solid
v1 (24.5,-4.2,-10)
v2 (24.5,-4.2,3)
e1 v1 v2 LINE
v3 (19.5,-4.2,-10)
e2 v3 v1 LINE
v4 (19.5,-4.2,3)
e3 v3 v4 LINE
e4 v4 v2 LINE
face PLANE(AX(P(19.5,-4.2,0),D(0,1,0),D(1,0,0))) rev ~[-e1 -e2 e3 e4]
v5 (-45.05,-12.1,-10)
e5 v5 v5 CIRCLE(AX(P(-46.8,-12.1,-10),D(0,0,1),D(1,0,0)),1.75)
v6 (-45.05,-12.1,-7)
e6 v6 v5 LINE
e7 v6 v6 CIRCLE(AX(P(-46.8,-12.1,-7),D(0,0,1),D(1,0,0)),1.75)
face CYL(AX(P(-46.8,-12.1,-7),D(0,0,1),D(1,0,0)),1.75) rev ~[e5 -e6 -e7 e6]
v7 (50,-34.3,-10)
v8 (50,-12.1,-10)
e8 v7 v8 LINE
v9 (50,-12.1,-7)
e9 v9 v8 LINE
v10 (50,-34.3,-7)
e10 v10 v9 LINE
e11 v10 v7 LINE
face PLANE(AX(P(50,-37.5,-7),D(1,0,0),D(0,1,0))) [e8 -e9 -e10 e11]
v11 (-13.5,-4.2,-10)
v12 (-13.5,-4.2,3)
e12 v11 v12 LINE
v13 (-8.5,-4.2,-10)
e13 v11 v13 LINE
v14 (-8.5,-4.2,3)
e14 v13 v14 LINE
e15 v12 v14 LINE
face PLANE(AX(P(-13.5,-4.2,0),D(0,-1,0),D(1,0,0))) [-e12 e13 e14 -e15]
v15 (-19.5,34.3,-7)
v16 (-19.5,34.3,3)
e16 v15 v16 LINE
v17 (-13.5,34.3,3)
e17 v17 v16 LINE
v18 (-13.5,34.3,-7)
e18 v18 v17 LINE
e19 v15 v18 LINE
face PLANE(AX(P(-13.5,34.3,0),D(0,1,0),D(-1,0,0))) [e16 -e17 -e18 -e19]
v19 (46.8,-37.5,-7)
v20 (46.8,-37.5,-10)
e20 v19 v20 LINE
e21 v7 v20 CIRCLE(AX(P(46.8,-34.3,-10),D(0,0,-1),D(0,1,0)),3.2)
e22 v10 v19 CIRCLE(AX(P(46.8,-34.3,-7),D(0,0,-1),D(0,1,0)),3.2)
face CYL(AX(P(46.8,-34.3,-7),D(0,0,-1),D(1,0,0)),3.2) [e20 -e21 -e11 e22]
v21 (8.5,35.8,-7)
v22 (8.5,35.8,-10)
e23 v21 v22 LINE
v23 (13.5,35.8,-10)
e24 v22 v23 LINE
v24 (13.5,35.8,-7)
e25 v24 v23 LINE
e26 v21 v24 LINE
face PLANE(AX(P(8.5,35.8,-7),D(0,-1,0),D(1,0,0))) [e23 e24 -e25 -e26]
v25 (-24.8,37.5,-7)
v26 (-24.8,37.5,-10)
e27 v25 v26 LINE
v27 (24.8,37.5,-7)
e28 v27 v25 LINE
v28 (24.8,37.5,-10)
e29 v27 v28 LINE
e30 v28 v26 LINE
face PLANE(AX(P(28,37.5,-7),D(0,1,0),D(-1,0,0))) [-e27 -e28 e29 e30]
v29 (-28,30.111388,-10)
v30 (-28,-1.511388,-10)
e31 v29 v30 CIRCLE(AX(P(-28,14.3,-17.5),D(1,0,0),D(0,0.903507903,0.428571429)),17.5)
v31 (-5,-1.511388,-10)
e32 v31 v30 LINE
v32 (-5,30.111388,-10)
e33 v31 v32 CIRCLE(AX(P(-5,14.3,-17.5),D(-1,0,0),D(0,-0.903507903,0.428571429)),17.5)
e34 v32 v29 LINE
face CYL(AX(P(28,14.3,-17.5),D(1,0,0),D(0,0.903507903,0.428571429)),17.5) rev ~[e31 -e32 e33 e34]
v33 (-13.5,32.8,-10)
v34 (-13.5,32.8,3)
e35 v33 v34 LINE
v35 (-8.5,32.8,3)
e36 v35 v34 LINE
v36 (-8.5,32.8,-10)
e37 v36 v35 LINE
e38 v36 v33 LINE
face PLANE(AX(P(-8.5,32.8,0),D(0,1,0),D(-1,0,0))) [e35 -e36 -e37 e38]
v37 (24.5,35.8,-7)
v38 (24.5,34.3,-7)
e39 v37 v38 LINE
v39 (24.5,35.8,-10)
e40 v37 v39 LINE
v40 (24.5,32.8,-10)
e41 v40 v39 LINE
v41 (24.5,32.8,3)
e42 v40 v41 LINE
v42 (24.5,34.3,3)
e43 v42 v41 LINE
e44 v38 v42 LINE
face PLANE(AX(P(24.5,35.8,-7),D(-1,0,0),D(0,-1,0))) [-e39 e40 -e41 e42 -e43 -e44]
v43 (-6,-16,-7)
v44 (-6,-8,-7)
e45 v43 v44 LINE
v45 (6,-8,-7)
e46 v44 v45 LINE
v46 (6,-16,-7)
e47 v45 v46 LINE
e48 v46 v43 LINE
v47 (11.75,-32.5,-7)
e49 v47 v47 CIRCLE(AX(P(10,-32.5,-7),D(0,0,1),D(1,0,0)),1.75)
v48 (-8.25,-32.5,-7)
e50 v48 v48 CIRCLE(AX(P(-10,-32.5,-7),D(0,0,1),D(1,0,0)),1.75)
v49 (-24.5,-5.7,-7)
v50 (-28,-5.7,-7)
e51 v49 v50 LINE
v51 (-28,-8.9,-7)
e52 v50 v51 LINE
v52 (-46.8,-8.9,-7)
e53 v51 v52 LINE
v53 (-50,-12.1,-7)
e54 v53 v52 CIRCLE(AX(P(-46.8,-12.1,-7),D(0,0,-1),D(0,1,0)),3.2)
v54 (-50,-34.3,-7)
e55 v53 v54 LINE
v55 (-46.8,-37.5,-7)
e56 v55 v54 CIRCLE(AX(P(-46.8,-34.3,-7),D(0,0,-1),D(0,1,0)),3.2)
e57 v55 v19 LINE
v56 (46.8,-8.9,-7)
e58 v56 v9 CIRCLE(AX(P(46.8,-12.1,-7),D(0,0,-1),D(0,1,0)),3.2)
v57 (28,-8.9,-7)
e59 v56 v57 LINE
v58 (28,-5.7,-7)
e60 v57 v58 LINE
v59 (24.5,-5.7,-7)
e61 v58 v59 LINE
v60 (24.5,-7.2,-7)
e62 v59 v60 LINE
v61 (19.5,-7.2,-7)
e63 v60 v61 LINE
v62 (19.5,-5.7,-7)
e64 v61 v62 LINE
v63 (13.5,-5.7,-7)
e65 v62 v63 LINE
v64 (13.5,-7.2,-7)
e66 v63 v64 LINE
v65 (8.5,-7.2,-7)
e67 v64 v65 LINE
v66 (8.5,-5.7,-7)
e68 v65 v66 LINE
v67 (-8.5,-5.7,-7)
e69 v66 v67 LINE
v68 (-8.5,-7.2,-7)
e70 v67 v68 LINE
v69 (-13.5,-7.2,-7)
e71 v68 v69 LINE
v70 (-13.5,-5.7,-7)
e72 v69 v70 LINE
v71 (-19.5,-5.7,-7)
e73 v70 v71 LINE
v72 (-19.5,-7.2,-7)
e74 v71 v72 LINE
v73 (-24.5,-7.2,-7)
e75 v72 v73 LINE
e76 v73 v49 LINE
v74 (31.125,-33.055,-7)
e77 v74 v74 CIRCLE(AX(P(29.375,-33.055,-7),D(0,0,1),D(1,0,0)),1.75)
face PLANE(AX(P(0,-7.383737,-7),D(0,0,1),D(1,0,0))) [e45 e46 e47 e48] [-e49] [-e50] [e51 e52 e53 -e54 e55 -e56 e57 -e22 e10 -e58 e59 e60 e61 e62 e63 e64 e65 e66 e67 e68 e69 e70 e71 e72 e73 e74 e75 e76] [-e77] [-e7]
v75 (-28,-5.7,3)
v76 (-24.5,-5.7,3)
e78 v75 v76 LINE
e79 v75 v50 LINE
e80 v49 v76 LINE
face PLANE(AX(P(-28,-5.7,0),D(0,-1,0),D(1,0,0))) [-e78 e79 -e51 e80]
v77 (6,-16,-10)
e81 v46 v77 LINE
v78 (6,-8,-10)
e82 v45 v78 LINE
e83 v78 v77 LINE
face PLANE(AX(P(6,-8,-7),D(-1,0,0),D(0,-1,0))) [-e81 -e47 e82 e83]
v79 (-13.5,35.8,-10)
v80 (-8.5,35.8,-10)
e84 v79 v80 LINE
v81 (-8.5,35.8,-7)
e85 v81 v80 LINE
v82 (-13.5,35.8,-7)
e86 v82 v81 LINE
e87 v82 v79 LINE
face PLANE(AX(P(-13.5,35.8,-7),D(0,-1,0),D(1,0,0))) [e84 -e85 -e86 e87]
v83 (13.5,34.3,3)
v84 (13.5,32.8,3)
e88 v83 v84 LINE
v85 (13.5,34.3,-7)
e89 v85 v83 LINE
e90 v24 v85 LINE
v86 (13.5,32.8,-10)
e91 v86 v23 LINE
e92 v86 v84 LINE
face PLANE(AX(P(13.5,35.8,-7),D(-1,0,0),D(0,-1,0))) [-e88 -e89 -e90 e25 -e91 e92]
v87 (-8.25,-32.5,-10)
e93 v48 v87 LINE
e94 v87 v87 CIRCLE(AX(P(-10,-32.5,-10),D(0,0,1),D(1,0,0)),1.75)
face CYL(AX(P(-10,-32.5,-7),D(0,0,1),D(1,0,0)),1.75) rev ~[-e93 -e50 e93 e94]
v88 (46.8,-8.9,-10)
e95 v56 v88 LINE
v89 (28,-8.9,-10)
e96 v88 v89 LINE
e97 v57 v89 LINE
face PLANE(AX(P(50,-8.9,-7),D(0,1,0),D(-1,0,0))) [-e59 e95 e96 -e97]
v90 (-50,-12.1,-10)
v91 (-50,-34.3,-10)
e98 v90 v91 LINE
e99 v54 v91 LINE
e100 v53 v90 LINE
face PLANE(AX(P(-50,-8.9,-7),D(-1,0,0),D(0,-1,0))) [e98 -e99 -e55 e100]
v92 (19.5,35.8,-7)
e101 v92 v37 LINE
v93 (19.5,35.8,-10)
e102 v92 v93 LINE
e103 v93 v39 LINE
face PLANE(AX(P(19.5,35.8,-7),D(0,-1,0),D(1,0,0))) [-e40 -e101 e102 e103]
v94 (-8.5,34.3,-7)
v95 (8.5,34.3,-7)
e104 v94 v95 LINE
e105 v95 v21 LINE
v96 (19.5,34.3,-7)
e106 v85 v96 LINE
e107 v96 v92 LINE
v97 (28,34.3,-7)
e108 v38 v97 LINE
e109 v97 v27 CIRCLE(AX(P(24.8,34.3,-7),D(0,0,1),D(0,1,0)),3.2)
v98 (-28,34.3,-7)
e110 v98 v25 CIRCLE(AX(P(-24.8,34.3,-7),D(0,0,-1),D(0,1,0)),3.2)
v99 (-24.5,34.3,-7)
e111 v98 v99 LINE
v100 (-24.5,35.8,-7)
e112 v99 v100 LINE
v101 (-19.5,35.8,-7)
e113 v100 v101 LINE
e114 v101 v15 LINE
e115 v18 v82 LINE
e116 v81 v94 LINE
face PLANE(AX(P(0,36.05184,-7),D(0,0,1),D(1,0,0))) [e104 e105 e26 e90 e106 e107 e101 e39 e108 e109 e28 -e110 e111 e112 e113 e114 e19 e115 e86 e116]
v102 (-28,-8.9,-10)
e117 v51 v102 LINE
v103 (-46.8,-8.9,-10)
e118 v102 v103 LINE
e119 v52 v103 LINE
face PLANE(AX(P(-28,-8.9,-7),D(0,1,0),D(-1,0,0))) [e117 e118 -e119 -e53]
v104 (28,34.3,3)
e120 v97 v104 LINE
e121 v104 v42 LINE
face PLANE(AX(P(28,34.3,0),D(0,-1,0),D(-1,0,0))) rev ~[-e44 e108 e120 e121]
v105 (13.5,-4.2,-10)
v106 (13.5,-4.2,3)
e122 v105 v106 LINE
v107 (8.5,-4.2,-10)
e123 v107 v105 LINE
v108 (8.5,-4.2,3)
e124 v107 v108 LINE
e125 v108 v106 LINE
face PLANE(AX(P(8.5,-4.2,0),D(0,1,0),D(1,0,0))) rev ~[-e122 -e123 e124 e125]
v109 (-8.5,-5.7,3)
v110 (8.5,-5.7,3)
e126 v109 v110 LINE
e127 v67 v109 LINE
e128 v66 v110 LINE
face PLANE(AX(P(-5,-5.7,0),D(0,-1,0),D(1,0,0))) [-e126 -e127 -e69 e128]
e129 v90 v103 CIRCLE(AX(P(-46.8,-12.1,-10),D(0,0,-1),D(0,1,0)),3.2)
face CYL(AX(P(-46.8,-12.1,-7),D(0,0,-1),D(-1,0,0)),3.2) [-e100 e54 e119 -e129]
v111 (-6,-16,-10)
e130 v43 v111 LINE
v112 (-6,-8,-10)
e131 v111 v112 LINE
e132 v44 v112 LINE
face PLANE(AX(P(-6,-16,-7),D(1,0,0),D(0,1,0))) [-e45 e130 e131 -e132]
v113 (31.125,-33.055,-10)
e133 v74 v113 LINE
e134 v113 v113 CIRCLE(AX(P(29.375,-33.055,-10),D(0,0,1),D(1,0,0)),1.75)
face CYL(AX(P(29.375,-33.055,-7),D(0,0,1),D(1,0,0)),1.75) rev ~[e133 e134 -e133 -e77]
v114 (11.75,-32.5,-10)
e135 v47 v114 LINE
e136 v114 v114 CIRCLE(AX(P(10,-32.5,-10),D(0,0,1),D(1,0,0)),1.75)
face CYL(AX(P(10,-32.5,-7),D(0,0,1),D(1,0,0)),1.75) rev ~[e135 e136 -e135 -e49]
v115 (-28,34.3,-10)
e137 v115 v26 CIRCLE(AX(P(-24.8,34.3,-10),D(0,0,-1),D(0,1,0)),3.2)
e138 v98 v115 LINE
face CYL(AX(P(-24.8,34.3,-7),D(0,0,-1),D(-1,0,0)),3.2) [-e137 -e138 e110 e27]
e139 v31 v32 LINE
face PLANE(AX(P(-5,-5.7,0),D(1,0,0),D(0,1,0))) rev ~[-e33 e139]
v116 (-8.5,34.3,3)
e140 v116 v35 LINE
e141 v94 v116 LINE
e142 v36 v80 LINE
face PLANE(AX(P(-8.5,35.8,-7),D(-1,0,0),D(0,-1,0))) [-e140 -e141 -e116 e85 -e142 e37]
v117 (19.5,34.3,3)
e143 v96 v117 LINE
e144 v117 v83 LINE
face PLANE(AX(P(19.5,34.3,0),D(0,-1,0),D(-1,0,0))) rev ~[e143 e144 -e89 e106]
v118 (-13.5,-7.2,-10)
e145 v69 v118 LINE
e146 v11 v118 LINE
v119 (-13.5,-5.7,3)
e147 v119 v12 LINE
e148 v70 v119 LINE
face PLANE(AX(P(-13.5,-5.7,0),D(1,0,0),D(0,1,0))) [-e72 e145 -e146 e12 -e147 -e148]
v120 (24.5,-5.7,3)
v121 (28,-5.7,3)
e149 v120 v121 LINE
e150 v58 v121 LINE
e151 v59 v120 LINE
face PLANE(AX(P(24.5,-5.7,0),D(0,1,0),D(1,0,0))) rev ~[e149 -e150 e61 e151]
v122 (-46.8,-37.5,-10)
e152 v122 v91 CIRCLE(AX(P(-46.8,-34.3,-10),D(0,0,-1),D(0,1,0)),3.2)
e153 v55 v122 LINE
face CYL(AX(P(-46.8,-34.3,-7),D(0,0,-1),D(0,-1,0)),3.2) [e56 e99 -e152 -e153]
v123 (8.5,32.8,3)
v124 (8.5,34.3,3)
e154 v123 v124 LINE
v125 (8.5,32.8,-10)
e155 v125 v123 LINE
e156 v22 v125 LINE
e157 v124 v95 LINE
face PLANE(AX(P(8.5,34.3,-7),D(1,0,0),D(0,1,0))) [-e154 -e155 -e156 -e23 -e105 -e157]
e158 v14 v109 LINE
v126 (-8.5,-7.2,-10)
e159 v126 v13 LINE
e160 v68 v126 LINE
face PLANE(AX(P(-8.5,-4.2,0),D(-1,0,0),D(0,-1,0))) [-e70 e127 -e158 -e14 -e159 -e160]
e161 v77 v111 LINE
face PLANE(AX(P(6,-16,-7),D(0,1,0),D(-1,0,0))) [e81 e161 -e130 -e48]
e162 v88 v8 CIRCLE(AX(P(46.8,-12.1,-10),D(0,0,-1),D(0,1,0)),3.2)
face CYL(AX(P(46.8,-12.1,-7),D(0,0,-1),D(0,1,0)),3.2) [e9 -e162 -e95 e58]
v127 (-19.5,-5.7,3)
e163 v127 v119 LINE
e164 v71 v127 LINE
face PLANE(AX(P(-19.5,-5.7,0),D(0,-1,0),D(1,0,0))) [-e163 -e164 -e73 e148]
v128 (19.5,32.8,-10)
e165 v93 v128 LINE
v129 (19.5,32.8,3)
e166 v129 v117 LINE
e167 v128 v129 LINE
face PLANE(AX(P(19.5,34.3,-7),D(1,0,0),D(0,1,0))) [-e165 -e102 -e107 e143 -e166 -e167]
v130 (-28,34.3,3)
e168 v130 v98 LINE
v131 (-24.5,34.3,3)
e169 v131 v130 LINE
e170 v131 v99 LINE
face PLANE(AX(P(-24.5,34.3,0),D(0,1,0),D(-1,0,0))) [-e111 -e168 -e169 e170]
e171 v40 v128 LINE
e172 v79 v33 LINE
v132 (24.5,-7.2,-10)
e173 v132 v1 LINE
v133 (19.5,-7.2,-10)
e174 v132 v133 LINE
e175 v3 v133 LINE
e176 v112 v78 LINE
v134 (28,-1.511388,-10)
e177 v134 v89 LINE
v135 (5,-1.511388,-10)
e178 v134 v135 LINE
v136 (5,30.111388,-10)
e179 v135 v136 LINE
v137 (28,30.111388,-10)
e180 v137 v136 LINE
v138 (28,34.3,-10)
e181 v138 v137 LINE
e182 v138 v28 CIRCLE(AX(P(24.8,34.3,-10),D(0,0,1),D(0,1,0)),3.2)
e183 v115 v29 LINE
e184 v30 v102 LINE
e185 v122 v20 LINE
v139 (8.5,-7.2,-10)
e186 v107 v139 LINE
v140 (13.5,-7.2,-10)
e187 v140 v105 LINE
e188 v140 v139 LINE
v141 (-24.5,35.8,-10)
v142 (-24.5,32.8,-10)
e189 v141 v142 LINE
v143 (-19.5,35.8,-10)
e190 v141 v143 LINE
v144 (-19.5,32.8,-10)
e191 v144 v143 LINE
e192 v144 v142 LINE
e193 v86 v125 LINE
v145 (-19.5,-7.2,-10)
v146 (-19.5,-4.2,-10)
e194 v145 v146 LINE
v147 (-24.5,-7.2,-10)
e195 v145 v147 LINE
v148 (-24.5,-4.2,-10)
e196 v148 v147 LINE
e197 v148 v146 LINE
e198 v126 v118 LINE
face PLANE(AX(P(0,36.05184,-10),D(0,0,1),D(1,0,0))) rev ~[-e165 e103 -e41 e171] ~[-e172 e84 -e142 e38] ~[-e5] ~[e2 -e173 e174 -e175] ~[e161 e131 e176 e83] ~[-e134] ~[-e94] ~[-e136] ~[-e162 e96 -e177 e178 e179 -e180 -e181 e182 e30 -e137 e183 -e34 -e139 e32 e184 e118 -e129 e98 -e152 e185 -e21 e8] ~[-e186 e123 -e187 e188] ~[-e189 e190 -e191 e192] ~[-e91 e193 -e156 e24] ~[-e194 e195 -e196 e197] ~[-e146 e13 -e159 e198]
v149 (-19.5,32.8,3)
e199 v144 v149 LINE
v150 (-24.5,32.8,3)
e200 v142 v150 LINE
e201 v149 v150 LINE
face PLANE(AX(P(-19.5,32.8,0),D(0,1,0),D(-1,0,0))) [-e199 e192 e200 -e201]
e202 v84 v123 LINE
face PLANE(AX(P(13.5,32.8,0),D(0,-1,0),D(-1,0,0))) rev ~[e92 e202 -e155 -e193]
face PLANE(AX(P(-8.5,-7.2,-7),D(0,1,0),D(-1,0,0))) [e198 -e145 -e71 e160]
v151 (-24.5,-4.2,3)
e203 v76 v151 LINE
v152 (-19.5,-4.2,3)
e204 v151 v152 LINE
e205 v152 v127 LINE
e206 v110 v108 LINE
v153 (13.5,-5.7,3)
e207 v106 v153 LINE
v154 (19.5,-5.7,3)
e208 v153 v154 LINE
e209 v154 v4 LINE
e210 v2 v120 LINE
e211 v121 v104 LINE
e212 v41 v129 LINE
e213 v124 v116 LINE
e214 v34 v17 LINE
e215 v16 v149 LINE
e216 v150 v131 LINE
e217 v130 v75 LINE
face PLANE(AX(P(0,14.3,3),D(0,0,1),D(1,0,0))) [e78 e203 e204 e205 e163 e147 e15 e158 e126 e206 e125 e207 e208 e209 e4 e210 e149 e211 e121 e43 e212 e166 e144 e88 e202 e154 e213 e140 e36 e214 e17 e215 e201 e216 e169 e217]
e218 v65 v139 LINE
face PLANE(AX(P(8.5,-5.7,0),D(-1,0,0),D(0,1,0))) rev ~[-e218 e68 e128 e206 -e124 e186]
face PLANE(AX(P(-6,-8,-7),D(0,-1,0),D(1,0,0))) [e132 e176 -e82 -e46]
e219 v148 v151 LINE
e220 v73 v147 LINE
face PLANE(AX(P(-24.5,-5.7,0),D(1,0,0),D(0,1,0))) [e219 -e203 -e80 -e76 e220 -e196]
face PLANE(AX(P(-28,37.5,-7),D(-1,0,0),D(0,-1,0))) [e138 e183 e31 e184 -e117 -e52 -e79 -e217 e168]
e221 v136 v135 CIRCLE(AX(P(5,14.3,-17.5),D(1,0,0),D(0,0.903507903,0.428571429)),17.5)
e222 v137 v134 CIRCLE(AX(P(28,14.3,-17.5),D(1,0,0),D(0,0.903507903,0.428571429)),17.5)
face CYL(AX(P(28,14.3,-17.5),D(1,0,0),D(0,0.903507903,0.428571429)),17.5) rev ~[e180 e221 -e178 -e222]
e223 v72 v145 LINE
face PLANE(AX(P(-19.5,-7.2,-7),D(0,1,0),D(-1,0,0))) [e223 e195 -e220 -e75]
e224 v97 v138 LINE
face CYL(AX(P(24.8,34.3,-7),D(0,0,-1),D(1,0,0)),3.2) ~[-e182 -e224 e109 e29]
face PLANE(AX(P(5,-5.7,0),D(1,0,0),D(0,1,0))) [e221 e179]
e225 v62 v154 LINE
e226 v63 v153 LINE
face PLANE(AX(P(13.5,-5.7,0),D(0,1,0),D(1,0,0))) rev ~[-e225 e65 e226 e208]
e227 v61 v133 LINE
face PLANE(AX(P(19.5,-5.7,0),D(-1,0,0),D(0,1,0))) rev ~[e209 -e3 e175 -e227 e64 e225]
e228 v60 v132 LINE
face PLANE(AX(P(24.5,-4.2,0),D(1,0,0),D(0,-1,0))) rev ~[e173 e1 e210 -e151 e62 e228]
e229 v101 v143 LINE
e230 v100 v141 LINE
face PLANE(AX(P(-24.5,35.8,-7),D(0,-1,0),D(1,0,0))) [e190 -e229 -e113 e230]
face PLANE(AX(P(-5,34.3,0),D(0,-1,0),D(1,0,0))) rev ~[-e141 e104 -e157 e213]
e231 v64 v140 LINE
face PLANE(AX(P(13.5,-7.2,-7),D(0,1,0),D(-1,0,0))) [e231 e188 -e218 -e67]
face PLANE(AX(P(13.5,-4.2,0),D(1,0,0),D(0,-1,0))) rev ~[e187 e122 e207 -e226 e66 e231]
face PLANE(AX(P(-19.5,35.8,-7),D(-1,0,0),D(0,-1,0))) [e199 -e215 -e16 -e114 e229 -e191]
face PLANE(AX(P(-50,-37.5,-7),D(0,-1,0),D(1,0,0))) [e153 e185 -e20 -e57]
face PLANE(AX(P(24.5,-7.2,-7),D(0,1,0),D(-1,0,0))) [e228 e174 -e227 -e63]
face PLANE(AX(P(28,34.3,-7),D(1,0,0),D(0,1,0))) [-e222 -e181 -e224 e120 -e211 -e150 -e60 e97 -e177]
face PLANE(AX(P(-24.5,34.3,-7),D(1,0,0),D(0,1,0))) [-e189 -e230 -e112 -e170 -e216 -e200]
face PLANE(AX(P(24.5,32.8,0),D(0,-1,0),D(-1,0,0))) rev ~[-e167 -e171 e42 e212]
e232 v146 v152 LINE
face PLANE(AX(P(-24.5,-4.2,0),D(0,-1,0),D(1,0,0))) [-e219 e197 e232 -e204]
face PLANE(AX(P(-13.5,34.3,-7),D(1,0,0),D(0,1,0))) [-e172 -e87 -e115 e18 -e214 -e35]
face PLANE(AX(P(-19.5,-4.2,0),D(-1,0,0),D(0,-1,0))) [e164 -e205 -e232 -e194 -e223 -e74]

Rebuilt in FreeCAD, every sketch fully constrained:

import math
import FreeCAD as App
import Part
import Sketcher


def edges_at(feature, points):
    """Names of the edges that pass closest to the given points."""
    edges = feature.Shape.Edges
    near = lambda p: min(range(len(edges)), key=lambda i: edges[i].distToShape(Part.Vertex(*p))[0])
    return sorted({f"Edge{near(p) + 1}" for p in points})

doc = App.newDocument("Part")
body = doc.addObject("PartDesign::Body", "Body")

# Sketch on XY plane
sketch1 = doc.addObject("Sketcher::SketchObject", "Sketch")
body.addObject(sketch1)
sketch1.AttachmentSupport = (doc.XY_Plane, [""])
sketch1.MapMode = "FlatFace"
sketch1.addGeometry([
    Part.LineSegment(App.Vector(-8.5, 34.3, 0), App.Vector(-8.5, 32.8, 0)),  # 0
    Part.LineSegment(App.Vector(-8.5, 32.8, 0), App.Vector(-13.5, 32.8, 0)),  # 1
    Part.LineSegment(App.Vector(-13.5, 32.8, 0), App.Vector(-13.5, 34.3, 0)),  # 2
    Part.LineSegment(App.Vector(-13.5, 34.3, 0), App.Vector(-19.5, 34.3, 0)),  # 3
    Part.LineSegment(App.Vector(-19.5, 34.3, 0), App.Vector(-19.5, 32.8, 0)),  # 4
    Part.LineSegment(App.Vector(-19.5, 32.8, 0), App.Vector(-24.5, 32.8, 0)),  # 5
    Part.LineSegment(App.Vector(-24.5, 32.8, 0), App.Vector(-24.5, 34.3, 0)),  # 6
    Part.LineSegment(App.Vector(-24.5, 34.3, 0), App.Vector(-28, 34.3, 0)),  # 7
    Part.LineSegment(App.Vector(-28, 34.3, 0), App.Vector(-28, -5.7, 0)),  # 8
    Part.LineSegment(App.Vector(-28, -5.7, 0), App.Vector(-24.5, -5.7, 0)),  # 9
    Part.LineSegment(App.Vector(-24.5, -5.7, 0), App.Vector(-24.5, -4.2, 0)),  # 10
    Part.LineSegment(App.Vector(-24.5, -4.2, 0), App.Vector(-19.5, -4.2, 0)),  # 11
    Part.LineSegment(App.Vector(-19.5, -4.2, 0), App.Vector(-19.5, -5.7, 0)),  # 12
    Part.LineSegment(App.Vector(-19.5, -5.7, 0), App.Vector(-13.5, -5.7, 0)),  # 13
    Part.LineSegment(App.Vector(-13.5, -5.7, 0), App.Vector(-13.5, -4.2, 0)),  # 14
    Part.LineSegment(App.Vector(-13.5, -4.2, 0), App.Vector(-8.5, -4.2, 0)),  # 15
    Part.LineSegment(App.Vector(-8.5, -4.2, 0), App.Vector(-8.5, -5.7, 0)),  # 16
    Part.LineSegment(App.Vector(-8.5, -5.7, 0), App.Vector(8.5, -5.7, 0)),  # 17
    Part.LineSegment(App.Vector(8.5, -5.7, 0), App.Vector(8.5, -4.2, 0)),  # 18
    Part.LineSegment(App.Vector(8.5, -4.2, 0), App.Vector(13.5, -4.2, 0)),  # 19
    Part.LineSegment(App.Vector(13.5, -4.2, 0), App.Vector(13.5, -5.7, 0)),  # 20
    Part.LineSegment(App.Vector(13.5, -5.7, 0), App.Vector(19.5, -5.7, 0)),  # 21
    Part.LineSegment(App.Vector(19.5, -5.7, 0), App.Vector(19.5, -4.2, 0)),  # 22
    Part.LineSegment(App.Vector(19.5, -4.2, 0), App.Vector(24.5, -4.2, 0)),  # 23
    Part.LineSegment(App.Vector(24.5, -4.2, 0), App.Vector(24.5, -5.7, 0)),  # 24
    Part.LineSegment(App.Vector(24.5, -5.7, 0), App.Vector(28, -5.7, 0)),  # 25
    Part.LineSegment(App.Vector(28, -5.7, 0), App.Vector(28, 34.3, 0)),  # 26
    Part.LineSegment(App.Vector(28, 34.3, 0), App.Vector(24.5, 34.3, 0)),  # 27
    Part.LineSegment(App.Vector(24.5, 34.3, 0), App.Vector(24.5, 32.8, 0)),  # 28
    Part.LineSegment(App.Vector(24.5, 32.8, 0), App.Vector(19.5, 32.8, 0)),  # 29
    Part.LineSegment(App.Vector(19.5, 32.8, 0), App.Vector(19.5, 34.3, 0)),  # 30
    Part.LineSegment(App.Vector(19.5, 34.3, 0), App.Vector(13.5, 34.3, 0)),  # 31
    Part.LineSegment(App.Vector(13.5, 34.3, 0), App.Vector(13.5, 32.8, 0)),  # 32
    Part.LineSegment(App.Vector(13.5, 32.8, 0), App.Vector(8.5, 32.8, 0)),  # 33
    Part.LineSegment(App.Vector(8.5, 32.8, 0), App.Vector(8.5, 34.3, 0)),  # 34
    Part.LineSegment(App.Vector(8.5, 34.3, 0), App.Vector(-8.5, 34.3, 0)),  # 35
], False)
sketch1.addConstraint([
    Sketcher.Constraint("Coincident", 0, 2, 1, 1),
    Sketcher.Constraint("Coincident", 1, 2, 2, 1),
    Sketcher.Constraint("Coincident", 2, 2, 3, 1),
    Sketcher.Constraint("Coincident", 3, 2, 4, 1),
    Sketcher.Constraint("Coincident", 4, 2, 5, 1),
    Sketcher.Constraint("Coincident", 5, 2, 6, 1),
    Sketcher.Constraint("Coincident", 6, 2, 7, 1),
    Sketcher.Constraint("Coincident", 7, 2, 8, 1),
    Sketcher.Constraint("Coincident", 8, 2, 9, 1),
    Sketcher.Constraint("Coincident", 9, 2, 10, 1),
    Sketcher.Constraint("Coincident", 10, 2, 11, 1),
    Sketcher.Constraint("Coincident", 11, 2, 12, 1),
    Sketcher.Constraint("Coincident", 12, 2, 13, 1),
    Sketcher.Constraint("Coincident", 13, 2, 14, 1),
    Sketcher.Constraint("Coincident", 14, 2, 15, 1),
    Sketcher.Constraint("Coincident", 15, 2, 16, 1),
    Sketcher.Constraint("Coincident", 16, 2, 17, 1),
    Sketcher.Constraint("Coincident", 17, 2, 18, 1),
    Sketcher.Constraint("Coincident", 18, 2, 19, 1),
    Sketcher.Constraint("Coincident", 19, 2, 20, 1),
    Sketcher.Constraint("Coincident", 20, 2, 21, 1),
    Sketcher.Constraint("Coincident", 21, 2, 22, 1),
    Sketcher.Constraint("Coincident", 22, 2, 23, 1),
    Sketcher.Constraint("Coincident", 23, 2, 24, 1),
    Sketcher.Constraint("Coincident", 24, 2, 25, 1),
    Sketcher.Constraint("Coincident", 25, 2, 26, 1),
    Sketcher.Constraint("Coincident", 26, 2, 27, 1),
    Sketcher.Constraint("Coincident", 27, 2, 28, 1),
    Sketcher.Constraint("Coincident", 28, 2, 29, 1),
    Sketcher.Constraint("Coincident", 29, 2, 30, 1),
    Sketcher.Constraint("Coincident", 30, 2, 31, 1),
    Sketcher.Constraint("Coincident", 31, 2, 32, 1),
    Sketcher.Constraint("Coincident", 32, 2, 33, 1),
    Sketcher.Constraint("Coincident", 33, 2, 34, 1),
    Sketcher.Constraint("Coincident", 34, 2, 35, 1),
    Sketcher.Constraint("Coincident", 35, 2, 0, 1),
    Sketcher.Constraint("Vertical", 0),
    Sketcher.Constraint("Horizontal", 1),
    Sketcher.Constraint("Vertical", 2),
    Sketcher.Constraint("Horizontal", 3),
    Sketcher.Constraint("Vertical", 4),
    Sketcher.Constraint("Horizontal", 5),
    Sketcher.Constraint("Vertical", 6),
    Sketcher.Constraint("Horizontal", 7),
    Sketcher.Constraint("Vertical", 8),
    Sketcher.Constraint("Horizontal", 9),
    Sketcher.Constraint("Vertical", 10),
    Sketcher.Constraint("Horizontal", 11),
    Sketcher.Constraint("Vertical", 12),
    Sketcher.Constraint("Horizontal", 13),
    Sketcher.Constraint("Vertical", 14),
    Sketcher.Constraint("Horizontal", 15),
    Sketcher.Constraint("Vertical", 16),
    Sketcher.Constraint("Horizontal", 17),
    Sketcher.Constraint("Vertical", 18),
    Sketcher.Constraint("Horizontal", 19),
    Sketcher.Constraint("Vertical", 20),
    Sketcher.Constraint("Horizontal", 21),
    Sketcher.Constraint("Vertical", 22),
    Sketcher.Constraint("Horizontal", 23),
    Sketcher.Constraint("Vertical", 24),
    Sketcher.Constraint("Horizontal", 25),
    Sketcher.Constraint("Vertical", 26),
    Sketcher.Constraint("Horizontal", 27),
    Sketcher.Constraint("Vertical", 28),
    Sketcher.Constraint("Horizontal", 29),
    Sketcher.Constraint("Vertical", 30),
    Sketcher.Constraint("Horizontal", 31),
    Sketcher.Constraint("Vertical", 32),
    Sketcher.Constraint("Horizontal", 33),
    Sketcher.Constraint("Vertical", 34),
    Sketcher.Constraint("Horizontal", 35),
    Sketcher.Constraint("Symmetric", 15, 2, 18, 2, -2),
    Sketcher.Constraint("Symmetric", 13, 2, 20, 2, -2),
    Sketcher.Constraint("Symmetric", 11, 2, 22, 2, -2),
    Sketcher.Constraint("Symmetric", 9, 2, 24, 2, -2),
    Sketcher.Constraint("Symmetric", 7, 2, 26, 2, -2),
    Sketcher.Constraint("Symmetric", 5, 2, 28, 2, -2),
    Sketcher.Constraint("Symmetric", 3, 2, 30, 2, -2),
    Sketcher.Constraint("Symmetric", 1, 2, 32, 2, -2),
    Sketcher.Constraint("Horizontal", 1, 2, 4, 2),
    Sketcher.Constraint("Horizontal", 3, 2, 6, 2),
    Sketcher.Constraint("Horizontal", 9, 2, 12, 2),
    Sketcher.Constraint("Horizontal", 11, 2, 14, 2),
    Sketcher.Constraint("Horizontal", 13, 2, 16, 2),
    Sketcher.Constraint("Horizontal", 31, 2, 34, 2),
    Sketcher.Constraint("Vertical", 6, 2, 9, 2),
    Sketcher.Constraint("Vertical", 4, 2, 11, 2),
    Sketcher.Constraint("Vertical", 2, 2, 13, 2),
    Sketcher.Constraint("Vertical", 0, 2, 15, 2),
    Sketcher.Constraint("Vertical", 18, 2, 33, 2),
    Sketcher.Constraint("Equal", 1, 5),
    Sketcher.Constraint("Equal", 6, 10),
    Sketcher.Constraint("DistanceX", 1, 2, 1, 1, 5.0),
    Sketcher.Constraint("DistanceX", 3, 2, 3, 1, 6.0),
    Sketcher.Constraint("DistanceX", 17, 1, 17, 2, 17.0),
    Sketcher.Constraint("DistanceY", 8, 2, 8, 1, 40.0),
    Sketcher.Constraint("DistanceX", 7, 2, 7, 1, 3.5),
    Sketcher.Constraint("DistanceY", 0, 2, 0, 1, 1.5),
    Sketcher.Constraint("DistanceY", -1, 1, 0, 2, 32.8),
])
pad1 = doc.addObject("PartDesign::Pad", "Pad")
body.addObject(pad1)
pad1.Profile = sketch1
pad1.Length = 3

# Sketch on XY plane
sketch2 = doc.addObject("Sketcher::SketchObject", "Sketch001")
body.addObject(sketch2)
sketch2.AttachmentSupport = (doc.XY_Plane, [""])
sketch2.MapMode = "FlatFace"
sketch2.addGeometry([
    Part.LineSegment(App.Vector(-28, -5.7, 0), App.Vector(-24.5, -5.7, 0)),  # 0
    Part.LineSegment(App.Vector(-24.5, -5.7, 0), App.Vector(-24.5, -4.2, 0)),  # 1
    Part.LineSegment(App.Vector(-24.5, -4.2, 0), App.Vector(-19.5, -4.2, 0)),  # 2
    Part.LineSegment(App.Vector(-19.5, -4.2, 0), App.Vector(-19.5, -5.7, 0)),  # 3
    Part.LineSegment(App.Vector(-19.5, -5.7, 0), App.Vector(-13.5, -5.7, 0)),  # 4
    Part.LineSegment(App.Vector(-13.5, -5.7, 0), App.Vector(-13.5, -4.2, 0)),  # 5
    Part.LineSegment(App.Vector(-13.5, -4.2, 0), App.Vector(-8.5, -4.2, 0)),  # 6
    Part.LineSegment(App.Vector(-8.5, -4.2, 0), App.Vector(-8.5, -5.7, 0)),  # 7
    Part.LineSegment(App.Vector(-8.5, -5.7, 0), App.Vector(-5, -5.7, 0)),  # 8
    Part.LineSegment(App.Vector(-5, -5.7, 0), App.Vector(-5, 34.3, 0)),  # 9
    Part.LineSegment(App.Vector(-5, 34.3, 0), App.Vector(-8.5, 34.3, 0)),  # 10
    Part.LineSegment(App.Vector(-8.5, 34.3, 0), App.Vector(-8.5, 32.8, 0)),  # 11
    Part.LineSegment(App.Vector(-8.5, 32.8, 0), App.Vector(-13.5, 32.8, 0)),  # 12
    Part.LineSegment(App.Vector(-13.5, 32.8, 0), App.Vector(-13.5, 34.3, 0)),  # 13
    Part.LineSegment(App.Vector(-13.5, 34.3, 0), App.Vector(-19.5, 34.3, 0)),  # 14
    Part.LineSegment(App.Vector(-19.5, 34.3, 0), App.Vector(-19.5, 32.8, 0)),  # 15
    Part.LineSegment(App.Vector(-19.5, 32.8, 0), App.Vector(-24.5, 32.8, 0)),  # 16
    Part.LineSegment(App.Vector(-24.5, 32.8, 0), App.Vector(-24.5, 34.3, 0)),  # 17
    Part.LineSegment(App.Vector(-24.5, 34.3, 0), App.Vector(-28, 34.3, 0)),  # 18
    Part.LineSegment(App.Vector(-28, 34.3, 0), App.Vector(-28, -5.7, 0)),  # 19
    Part.LineSegment(App.Vector(24.5, -5.7, 0), App.Vector(28, -5.7, 0)),  # 20
    Part.LineSegment(App.Vector(28, -5.7, 0), App.Vector(28, 34.3, 0)),  # 21
    Part.LineSegment(App.Vector(28, 34.3, 0), App.Vector(24.5, 34.3, 0)),  # 22
    Part.LineSegment(App.Vector(24.5, 34.3, 0), App.Vector(24.5, 32.8, 0)),  # 23
    Part.LineSegment(App.Vector(24.5, 32.8, 0), App.Vector(19.5, 32.8, 0)),  # 24
    Part.LineSegment(App.Vector(19.5, 32.8, 0), App.Vector(19.5, 34.3, 0)),  # 25
    Part.LineSegment(App.Vector(19.5, 34.3, 0), App.Vector(13.5, 34.3, 0)),  # 26
    Part.LineSegment(App.Vector(13.5, 34.3, 0), App.Vector(13.5, 32.8, 0)),  # 27
    Part.LineSegment(App.Vector(13.5, 32.8, 0), App.Vector(8.5, 32.8, 0)),  # 28
    Part.LineSegment(App.Vector(8.5, 32.8, 0), App.Vector(8.5, 34.3, 0)),  # 29
    Part.LineSegment(App.Vector(8.5, 34.3, 0), App.Vector(5, 34.3, 0)),  # 30
    Part.LineSegment(App.Vector(5, 34.3, 0), App.Vector(5, -5.7, 0)),  # 31
    Part.LineSegment(App.Vector(5, -5.7, 0), App.Vector(8.5, -5.7, 0)),  # 32
    Part.LineSegment(App.Vector(8.5, -5.7, 0), App.Vector(8.5, -4.2, 0)),  # 33
    Part.LineSegment(App.Vector(8.5, -4.2, 0), App.Vector(13.5, -4.2, 0)),  # 34
    Part.LineSegment(App.Vector(13.5, -4.2, 0), App.Vector(13.5, -5.7, 0)),  # 35
    Part.LineSegment(App.Vector(13.5, -5.7, 0), App.Vector(19.5, -5.7, 0)),  # 36
    Part.LineSegment(App.Vector(19.5, -5.7, 0), App.Vector(19.5, -4.2, 0)),  # 37
    Part.LineSegment(App.Vector(19.5, -4.2, 0), App.Vector(24.5, -4.2, 0)),  # 38
    Part.LineSegment(App.Vector(24.5, -4.2, 0), App.Vector(24.5, -5.7, 0)),  # 39
], False)
sketch2.addConstraint([
    Sketcher.Constraint("Coincident", 0, 2, 1, 1),
    Sketcher.Constraint("Coincident", 1, 2, 2, 1),
    Sketcher.Constraint("Coincident", 2, 2, 3, 1),
    Sketcher.Constraint("Coincident", 3, 2, 4, 1),
    Sketcher.Constraint("Coincident", 4, 2, 5, 1),
    Sketcher.Constraint("Coincident", 5, 2, 6, 1),
    Sketcher.Constraint("Coincident", 6, 2, 7, 1),
    Sketcher.Constraint("Coincident", 7, 2, 8, 1),
    Sketcher.Constraint("Coincident", 8, 2, 9, 1),
    Sketcher.Constraint("Coincident", 9, 2, 10, 1),
    Sketcher.Constraint("Coincident", 10, 2, 11, 1),
    Sketcher.Constraint("Coincident", 11, 2, 12, 1),
    Sketcher.Constraint("Coincident", 12, 2, 13, 1),
    Sketcher.Constraint("Coincident", 13, 2, 14, 1),
    Sketcher.Constraint("Coincident", 14, 2, 15, 1),
    Sketcher.Constraint("Coincident", 15, 2, 16, 1),
    Sketcher.Constraint("Coincident", 16, 2, 17, 1),
    Sketcher.Constraint("Coincident", 17, 2, 18, 1),
    Sketcher.Constraint("Coincident", 18, 2, 19, 1),
    Sketcher.Constraint("Coincident", 19, 2, 0, 1),
    Sketcher.Constraint("Coincident", 20, 2, 21, 1),
    Sketcher.Constraint("Coincident", 21, 2, 22, 1),
    Sketcher.Constraint("Coincident", 22, 2, 23, 1),
    Sketcher.Constraint("Coincident", 23, 2, 24, 1),
    Sketcher.Constraint("Coincident", 24, 2, 25, 1),
    Sketcher.Constraint("Coincident", 25, 2, 26, 1),
    Sketcher.Constraint("Coincident", 26, 2, 27, 1),
    Sketcher.Constraint("Coincident", 27, 2, 28, 1),
    Sketcher.Constraint("Coincident", 28, 2, 29, 1),
    Sketcher.Constraint("Coincident", 29, 2, 30, 1),
    Sketcher.Constraint("Coincident", 30, 2, 31, 1),
    Sketcher.Constraint("Coincident", 31, 2, 32, 1),
    Sketcher.Constraint("Coincident", 32, 2, 33, 1),
    Sketcher.Constraint("Coincident", 33, 2, 34, 1),
    Sketcher.Constraint("Coincident", 34, 2, 35, 1),
    Sketcher.Constraint("Coincident", 35, 2, 36, 1),
    Sketcher.Constraint("Coincident", 36, 2, 37, 1),
    Sketcher.Constraint("Coincident", 37, 2, 38, 1),
    Sketcher.Constraint("Coincident", 38, 2, 39, 1),
    Sketcher.Constraint("Coincident", 39, 2, 20, 1),
    Sketcher.Constraint("Horizontal", 0),
    Sketcher.Constraint("Vertical", 1),
    Sketcher.Constraint("Horizontal", 2),
    Sketcher.Constraint("Vertical", 3),
    Sketcher.Constraint("Horizontal", 4),
    Sketcher.Constraint("Vertical", 5),
    Sketcher.Constraint("Horizontal", 6),
    Sketcher.Constraint("Vertical", 7),
    Sketcher.Constraint("Horizontal", 8),
    Sketcher.Constraint("Vertical", 9),
    Sketcher.Constraint("Horizontal", 10),
    Sketcher.Constraint("Vertical", 11),
    Sketcher.Constraint("Horizontal", 12),
    Sketcher.Constraint("Vertical", 13),
    Sketcher.Constraint("Horizontal", 14),
    Sketcher.Constraint("Vertical", 15),
    Sketcher.Constraint("Horizontal", 16),
    Sketcher.Constraint("Vertical", 17),
    Sketcher.Constraint("Horizontal", 18),
    Sketcher.Constraint("Vertical", 19),
    Sketcher.Constraint("Horizontal", 20),
    Sketcher.Constraint("Vertical", 21),
    Sketcher.Constraint("Horizontal", 22),
    Sketcher.Constraint("Vertical", 23),
    Sketcher.Constraint("Horizontal", 24),
    Sketcher.Constraint("Vertical", 25),
    Sketcher.Constraint("Horizontal", 26),
    Sketcher.Constraint("Vertical", 27),
    Sketcher.Constraint("Horizontal", 28),
    Sketcher.Constraint("Vertical", 29),
    Sketcher.Constraint("Horizontal", 30),
    Sketcher.Constraint("Vertical", 31),
    Sketcher.Constraint("Horizontal", 32),
    Sketcher.Constraint("Vertical", 33),
    Sketcher.Constraint("Horizontal", 34),
    Sketcher.Constraint("Vertical", 35),
    Sketcher.Constraint("Horizontal", 36),
    Sketcher.Constraint("Vertical", 37),
    Sketcher.Constraint("Horizontal", 38),
    Sketcher.Constraint("Vertical", 39),
    Sketcher.Constraint("Symmetric", 19, 2, 20, 2, -2),
    Sketcher.Constraint("Symmetric", 17, 2, 22, 2, -2),
    Sketcher.Constraint("Symmetric", 15, 2, 24, 2, -2),
    Sketcher.Constraint("Symmetric", 13, 2, 26, 2, -2),
    Sketcher.Constraint("Symmetric", 11, 2, 28, 2, -2),
    Sketcher.Constraint("Symmetric", 9, 2, 30, 2, -2),
    Sketcher.Constraint("Symmetric", 7, 2, 32, 2, -2),
    Sketcher.Constraint("Symmetric", 5, 2, 34, 2, -2),
    Sketcher.Constraint("Symmetric", 3, 2, 36, 2, -2),
    Sketcher.Constraint("Symmetric", 1, 2, 38, 2, -2),
    Sketcher.Constraint("Horizontal", 0, 2, 3, 2),
    Sketcher.Constraint("Horizontal", 2, 2, 5, 2),
    Sketcher.Constraint("Horizontal", 4, 2, 7, 2),
    Sketcher.Constraint("Horizontal", 10, 2, 13, 2),
    Sketcher.Constraint("Horizontal", 12, 2, 15, 2),
    Sketcher.Constraint("Horizontal", 14, 2, 17, 2),
    Sketcher.Constraint("Vertical", 7, 2, 10, 2),
    Sketcher.Constraint("Vertical", 5, 2, 12, 2),
    Sketcher.Constraint("Vertical", 3, 2, 14, 2),
    Sketcher.Constraint("Vertical", 1, 2, 16, 2),
    Sketcher.Constraint("Equal", 2, 6),
    Sketcher.Constraint("Equal", 0, 8),
    Sketcher.Constraint("Equal", 7, 11),
    Sketcher.Constraint("DistanceX", 2, 1, 2, 2, 5.0),
    Sketcher.Constraint("DistanceX", 4, 1, 4, 2, 6.0),
    Sketcher.Constraint("DistanceY", 9, 1, 9, 2, 40.0),
    Sketcher.Constraint("DistanceX", 0, 1, 0, 2, 3.5),
    Sketcher.Constraint("DistanceY", 1, 1, 1, 2, 1.5),
    Sketcher.Constraint("DistanceX", 8, 2, -1, 1, 5.0),
    Sketcher.Constraint("DistanceY", 0, 2, -1, 1, 5.7),
])
pad2 = doc.addObject("PartDesign::Pad", "Pad001")
body.addObject(pad2)
pad2.Profile = sketch2
pad2.Length = 10
pad2.Reversed = True

# Sketch on YZ plane
sketch3 = doc.addObject("Sketcher::SketchObject", "Sketch002")
body.addObject(sketch3)
sketch3.AttachmentSupport = (doc.YZ_Plane, [""])
sketch3.MapMode = "FlatFace"
sketch3.AttachmentOffset = App.Placement(App.Vector(0, 0, 28), App.Rotation())
sketch3.addGeometry([
    Part.LineSegment(App.Vector(-2, -10, 0), App.Vector(30, -10, 0)),
    Part.ArcOfCircle(Part.Circle(App.Vector(14, -18, 0), App.Vector(0, 0, 1), 18), math.radians(25), math.radians(155)),
], False)
sketch3.addConstraint([
    Sketcher.Constraint("Coincident", 0, 1, 1, 2),
    Sketcher.Constraint("Coincident", 1, 1, 0, 2),
    Sketcher.Constraint("Horizontal", 0),
    Sketcher.Constraint("Radius", 1, 17.5),
    Sketcher.Constraint("DistanceY", 0, 1, -1, 1, 10.0),
    Sketcher.Constraint("DistanceX", -1, 1, 1, 3, 14.3),
    Sketcher.Constraint("DistanceY", 1, 3, -1, 1, 17.5),
])
pocket1 = doc.addObject("PartDesign::Pocket", "Pocket")
body.addObject(pocket1)
pocket1.Profile = sketch3
pocket1.Type = "ThroughAll"

# Sketch on XY plane
sketch4 = doc.addObject("Sketcher::SketchObject", "Sketch003")
body.addObject(sketch4)
sketch4.AttachmentSupport = (doc.XY_Plane, [""])
sketch4.MapMode = "FlatFace"
sketch4.addGeometry([
    Part.LineSegment(App.Vector(-5, 34, 0), App.Vector(-5, -6, 0)),
    Part.LineSegment(App.Vector(-5, -6, 0), App.Vector(5, -6, 0)),
    Part.LineSegment(App.Vector(5, -6, 0), App.Vector(5, 34, 0)),
    Part.LineSegment(App.Vector(5, 34, 0), App.Vector(-5, 34, 0)),
], False)
sketch4.addConstraint([
    Sketcher.Constraint("Coincident", 0, 2, 1, 1),
    Sketcher.Constraint("Coincident", 1, 2, 2, 1),
    Sketcher.Constraint("Coincident", 2, 2, 3, 1),
    Sketcher.Constraint("Coincident", 3, 2, 0, 1),
    Sketcher.Constraint("Vertical", 0),
    Sketcher.Constraint("Horizontal", 1),
    Sketcher.Constraint("Vertical", 2),
    Sketcher.Constraint("Horizontal", 3),
    Sketcher.Constraint("DistanceX", 1, 1, 1, 2, 10.0),
    Sketcher.Constraint("DistanceY", 0, 2, 0, 1, 40.0),
    Sketcher.Constraint("DistanceX", 0, 2, -1, 1, 5.0),
    Sketcher.Constraint("DistanceY", 0, 2, -1, 1, 5.7),
])
pad3 = doc.addObject("PartDesign::Pad", "Pad002")
body.addObject(pad3)
pad3.Profile = sketch4
pad3.Length = 10
pad3.Reversed = True

# Sketch on XY plane
sketch5 = doc.addObject("Sketcher::SketchObject", "Sketch004")
body.addObject(sketch5)
sketch5.AttachmentSupport = (doc.XY_Plane, [""])
sketch5.MapMode = "FlatFace"
sketch5.AttachmentOffset = App.Placement(App.Vector(0, 0, -7), App.Rotation())
sketch5.addGeometry([
    Part.LineSegment(App.Vector(-28, 37.5, 0), App.Vector(-28, 34.3, 0)),  # 0
    Part.LineSegment(App.Vector(-28, 34.3, 0), App.Vector(-24.5, 34.3, 0)),  # 1
    Part.LineSegment(App.Vector(-24.5, 34.3, 0), App.Vector(-24.5, 35.8, 0)),  # 2
    Part.LineSegment(App.Vector(-24.5, 35.8, 0), App.Vector(-19.5, 35.8, 0)),  # 3
    Part.LineSegment(App.Vector(-19.5, 35.8, 0), App.Vector(-19.5, 34.3, 0)),  # 4
    Part.LineSegment(App.Vector(-19.5, 34.3, 0), App.Vector(-13.5, 34.3, 0)),  # 5
    Part.LineSegment(App.Vector(-13.5, 34.3, 0), App.Vector(-13.5, 35.8, 0)),  # 6
    Part.LineSegment(App.Vector(-13.5, 35.8, 0), App.Vector(-8.5, 35.8, 0)),  # 7
    Part.LineSegment(App.Vector(-8.5, 35.8, 0), App.Vector(-8.5, 34.3, 0)),  # 8
    Part.LineSegment(App.Vector(-8.5, 34.3, 0), App.Vector(8.5, 34.3, 0)),  # 9
    Part.LineSegment(App.Vector(8.5, 34.3, 0), App.Vector(8.5, 35.8, 0)),  # 10
    Part.LineSegment(App.Vector(8.5, 35.8, 0), App.Vector(13.5, 35.8, 0)),  # 11
    Part.LineSegment(App.Vector(13.5, 35.8, 0), App.Vector(13.5, 34.3, 0)),  # 12
    Part.LineSegment(App.Vector(13.5, 34.3, 0), App.Vector(19.5, 34.3, 0)),  # 13
    Part.LineSegment(App.Vector(19.5, 34.3, 0), App.Vector(19.5, 35.8, 0)),  # 14
    Part.LineSegment(App.Vector(19.5, 35.8, 0), App.Vector(24.5, 35.8, 0)),  # 15
    Part.LineSegment(App.Vector(24.5, 35.8, 0), App.Vector(24.5, 34.3, 0)),  # 16
    Part.LineSegment(App.Vector(24.5, 34.3, 0), App.Vector(28, 34.3, 0)),  # 17
    Part.LineSegment(App.Vector(28, 34.3, 0), App.Vector(28, 37.5, 0)),  # 18
    Part.LineSegment(App.Vector(28, 37.5, 0), App.Vector(-28, 37.5, 0)),  # 19
    Part.LineSegment(App.Vector(-28, -5.7, 0), App.Vector(-28, -8.9, 0)),  # 20
    Part.LineSegment(App.Vector(-28, -8.9, 0), App.Vector(-50, -8.9, 0)),  # 21
    Part.LineSegment(App.Vector(-50, -8.9, 0), App.Vector(-50, -37.5, 0)),  # 22
    Part.LineSegment(App.Vector(-50, -37.5, 0), App.Vector(50, -37.5, 0)),  # 23
    Part.LineSegment(App.Vector(50, -37.5, 0), App.Vector(50, -8.9, 0)),  # 24
    Part.LineSegment(App.Vector(50, -8.9, 0), App.Vector(28, -8.9, 0)),  # 25
    Part.LineSegment(App.Vector(28, -8.9, 0), App.Vector(28, -5.7, 0)),  # 26
    Part.LineSegment(App.Vector(28, -5.7, 0), App.Vector(24.5, -5.7, 0)),  # 27
    Part.LineSegment(App.Vector(24.5, -5.7, 0), App.Vector(24.5, -7.2, 0)),  # 28
    Part.LineSegment(App.Vector(24.5, -7.2, 0), App.Vector(19.5, -7.2, 0)),  # 29
    Part.LineSegment(App.Vector(19.5, -7.2, 0), App.Vector(19.5, -5.7, 0)),  # 30
    Part.LineSegment(App.Vector(19.5, -5.7, 0), App.Vector(13.5, -5.7, 0)),  # 31
    Part.LineSegment(App.Vector(13.5, -5.7, 0), App.Vector(13.5, -7.2, 0)),  # 32
    Part.LineSegment(App.Vector(13.5, -7.2, 0), App.Vector(8.5, -7.2, 0)),  # 33
    Part.LineSegment(App.Vector(8.5, -7.2, 0), App.Vector(8.5, -5.7, 0)),  # 34
    Part.LineSegment(App.Vector(8.5, -5.7, 0), App.Vector(-8.5, -5.7, 0)),  # 35
    Part.LineSegment(App.Vector(-8.5, -5.7, 0), App.Vector(-8.5, -7.2, 0)),  # 36
    Part.LineSegment(App.Vector(-8.5, -7.2, 0), App.Vector(-13.5, -7.2, 0)),  # 37
    Part.LineSegment(App.Vector(-13.5, -7.2, 0), App.Vector(-13.5, -5.7, 0)),  # 38
    Part.LineSegment(App.Vector(-13.5, -5.7, 0), App.Vector(-19.5, -5.7, 0)),  # 39
    Part.LineSegment(App.Vector(-19.5, -5.7, 0), App.Vector(-19.5, -7.2, 0)),  # 40
    Part.LineSegment(App.Vector(-19.5, -7.2, 0), App.Vector(-24.5, -7.2, 0)),  # 41
    Part.LineSegment(App.Vector(-24.5, -7.2, 0), App.Vector(-24.5, -5.7, 0)),  # 42
    Part.LineSegment(App.Vector(-24.5, -5.7, 0), App.Vector(-28, -5.7, 0)),  # 43
    Part.Circle(App.Vector(-10, -32.5, 0), App.Vector(0, 0, 1), 1.8),  # 44
    Part.Circle(App.Vector(10, -32.5, 0), App.Vector(0, 0, 1), 1.8),  # 45
    Part.Circle(App.Vector(29.4, -33.1, 0), App.Vector(0, 0, 1), 1.8),  # 46
    Part.Circle(App.Vector(-46.8, -12.1, 0), App.Vector(0, 0, 1), 1.8),  # 47
    Part.LineSegment(App.Vector(-6, -8, 0), App.Vector(6, -8, 0)),  # 48
    Part.LineSegment(App.Vector(6, -8, 0), App.Vector(6, -16, 0)),  # 49
    Part.LineSegment(App.Vector(6, -16, 0), App.Vector(-6, -16, 0)),  # 50
    Part.LineSegment(App.Vector(-6, -16, 0), App.Vector(-6, -8, 0)),  # 51
], False)
sketch5.addConstraint([
    Sketcher.Constraint("Coincident", 0, 2, 1, 1),
    Sketcher.Constraint("Coincident", 1, 2, 2, 1),
    Sketcher.Constraint("Coincident", 2, 2, 3, 1),
    Sketcher.Constraint("Coincident", 3, 2, 4, 1),
    Sketcher.Constraint("Coincident", 4, 2, 5, 1),
    Sketcher.Constraint("Coincident", 5, 2, 6, 1),
    Sketcher.Constraint("Coincident", 6, 2, 7, 1),
    Sketcher.Constraint("Coincident", 7, 2, 8, 1),
    Sketcher.Constraint("Coincident", 8, 2, 9, 1),
    Sketcher.Constraint("Coincident", 9, 2, 10, 1),
    Sketcher.Constraint("Coincident", 10, 2, 11, 1),
    Sketcher.Constraint("Coincident", 11, 2, 12, 1),
    Sketcher.Constraint("Coincident", 12, 2, 13, 1),
    Sketcher.Constraint("Coincident", 13, 2, 14, 1),
    Sketcher.Constraint("Coincident", 14, 2, 15, 1),
    Sketcher.Constraint("Coincident", 15, 2, 16, 1),
    Sketcher.Constraint("Coincident", 16, 2, 17, 1),
    Sketcher.Constraint("Coincident", 17, 2, 18, 1),
    Sketcher.Constraint("Coincident", 18, 2, 19, 1),
    Sketcher.Constraint("Coincident", 19, 2, 0, 1),
    Sketcher.Constraint("Coincident", 20, 2, 21, 1),
    Sketcher.Constraint("Coincident", 21, 2, 22, 1),
    Sketcher.Constraint("Coincident", 22, 2, 23, 1),
    Sketcher.Constraint("Coincident", 23, 2, 24, 1),
    Sketcher.Constraint("Coincident", 24, 2, 25, 1),
    Sketcher.Constraint("Coincident", 25, 2, 26, 1),
    Sketcher.Constraint("Coincident", 26, 2, 27, 1),
    Sketcher.Constraint("Coincident", 27, 2, 28, 1),
    Sketcher.Constraint("Coincident", 28, 2, 29, 1),
    Sketcher.Constraint("Coincident", 29, 2, 30, 1),
    Sketcher.Constraint("Coincident", 30, 2, 31, 1),
    Sketcher.Constraint("Coincident", 31, 2, 32, 1),
    Sketcher.Constraint("Coincident", 32, 2, 33, 1),
    Sketcher.Constraint("Coincident", 33, 2, 34, 1),
    Sketcher.Constraint("Coincident", 34, 2, 35, 1),
    Sketcher.Constraint("Coincident", 35, 2, 36, 1),
    Sketcher.Constraint("Coincident", 36, 2, 37, 1),
    Sketcher.Constraint("Coincident", 37, 2, 38, 1),
    Sketcher.Constraint("Coincident", 38, 2, 39, 1),
    Sketcher.Constraint("Coincident", 39, 2, 40, 1),
    Sketcher.Constraint("Coincident", 40, 2, 41, 1),
    Sketcher.Constraint("Coincident", 41, 2, 42, 1),
    Sketcher.Constraint("Coincident", 42, 2, 43, 1),
    Sketcher.Constraint("Coincident", 43, 2, 20, 1),
    Sketcher.Constraint("Coincident", 48, 2, 49, 1),
    Sketcher.Constraint("Coincident", 49, 2, 50, 1),
    Sketcher.Constraint("Coincident", 50, 2, 51, 1),
    Sketcher.Constraint("Coincident", 51, 2, 48, 1),
    Sketcher.Constraint("Vertical", 0),
    Sketcher.Constraint("Horizontal", 1),
    Sketcher.Constraint("Vertical", 2),
    Sketcher.Constraint("Horizontal", 3),
    Sketcher.Constraint("Vertical", 4),
    Sketcher.Constraint("Horizontal", 5),
    Sketcher.Constraint("Vertical", 6),
    Sketcher.Constraint("Horizontal", 7),
    Sketcher.Constraint("Vertical", 8),
    Sketcher.Constraint("Horizontal", 9),
    Sketcher.Constraint("Vertical", 10),
    Sketcher.Constraint("Horizontal", 11),
    Sketcher.Constraint("Vertical", 12),
    Sketcher.Constraint("Horizontal", 13),
    Sketcher.Constraint("Vertical", 14),
    Sketcher.Constraint("Horizontal", 15),
    Sketcher.Constraint("Vertical", 16),
    Sketcher.Constraint("Horizontal", 17),
    Sketcher.Constraint("Vertical", 18),
    Sketcher.Constraint("Horizontal", 19),
    Sketcher.Constraint("Vertical", 20),
    Sketcher.Constraint("Horizontal", 21),
    Sketcher.Constraint("Vertical", 22),
    Sketcher.Constraint("Horizontal", 23),
    Sketcher.Constraint("Vertical", 24),
    Sketcher.Constraint("Horizontal", 25),
    Sketcher.Constraint("Vertical", 26),
    Sketcher.Constraint("Horizontal", 27),
    Sketcher.Constraint("Vertical", 28),
    Sketcher.Constraint("Horizontal", 29),
    Sketcher.Constraint("Vertical", 30),
    Sketcher.Constraint("Horizontal", 31),
    Sketcher.Constraint("Vertical", 32),
    Sketcher.Constraint("Horizontal", 33),
    Sketcher.Constraint("Vertical", 34),
    Sketcher.Constraint("Horizontal", 35),
    Sketcher.Constraint("Vertical", 36),
    Sketcher.Constraint("Horizontal", 37),
    Sketcher.Constraint("Vertical", 38),
    Sketcher.Constraint("Horizontal", 39),
    Sketcher.Constraint("Vertical", 40),
    Sketcher.Constraint("Horizontal", 41),
    Sketcher.Constraint("Vertical", 42),
    Sketcher.Constraint("Horizontal", 43),
    Sketcher.Constraint("Horizontal", 48),
    Sketcher.Constraint("Vertical", 49),
    Sketcher.Constraint("Horizontal", 50),
    Sketcher.Constraint("Vertical", 51),
    Sketcher.Constraint("Equal", 44, 45),
    Sketcher.Constraint("Equal", 45, 46),
    Sketcher.Constraint("Equal", 46, 47),
    Sketcher.Constraint("Symmetric", 44, 3, 45, 3, -2),
    Sketcher.Constraint("Symmetric", 7, 2, 10, 2, -2),
    Sketcher.Constraint("Symmetric", 5, 2, 12, 2, -2),
    Sketcher.Constraint("Symmetric", 3, 2, 14, 2, -2),
    Sketcher.Constraint("Symmetric", 1, 2, 16, 2, -2),
    Sketcher.Constraint("Symmetric", 21, 2, 24, 2, -2),
    Sketcher.Constraint("Symmetric", 33, 2, 36, 2, -2),
    Sketcher.Constraint("Symmetric", 31, 2, 38, 2, -2),
    Sketcher.Constraint("Symmetric", 29, 2, 40, 2, -2),
    Sketcher.Constraint("Symmetric", 27, 2, 42, 2, -2),
    Sketcher.Constraint("Horizontal", 1, 2, 4, 2),
    Sketcher.Constraint("Horizontal", 3, 2, 6, 2),
    Sketcher.Constraint("Horizontal", 5, 2, 8, 2),
    Sketcher.Constraint("Horizontal", 27, 2, 30, 2),
    Sketcher.Constraint("Horizontal", 29, 2, 32, 2),
    Sketcher.Constraint("Horizontal", 31, 2, 34, 2),
    Sketcher.Constraint("Vertical", 19, 2, 20, 2),
    Sketcher.Constraint("Vertical", 18, 2, 25, 2),
    Sketcher.Constraint("Vertical", 16, 2, 27, 2),
    Sketcher.Constraint("Vertical", 14, 2, 29, 2),
    Sketcher.Constraint("Vertical", 12, 2, 31, 2),
    Sketcher.Constraint("Vertical", 10, 2, 33, 2),
    Sketcher.Constraint("Equal", 3, 7),
    Sketcher.Constraint("Equal", 1, 17),
    Sketcher.Constraint("Equal", 18, 20),
    Sketcher.Constraint("Equal", 16, 28),
    Sketcher.Constraint("Diameter", 44, 3.5),
    Sketcher.Constraint("DistanceX", 3, 1, 3, 2, 5.0),
    Sketcher.Constraint("DistanceX", 5, 1, 5, 2, 6.0),
    Sketcher.Constraint("DistanceX", 9, 1, 9, 2, 17.0),
    Sketcher.Constraint("DistanceX", 19, 2, 19, 1, 56.0),
    Sketcher.Constraint("DistanceX", 21, 2, 21, 1, 22.0),
    Sketcher.Constraint("DistanceX", 48, 1, 48, 2, 12.0),
    Sketcher.Constraint("DistanceY", 49, 2, 49, 1, 8.0),
    Sketcher.Constraint("DistanceY", 0, 2, 0, 1, 3.2),
    Sketcher.Constraint("DistanceY", 2, 1, 2, 2, 1.5),
    Sketcher.Constraint("DistanceY", 22, 2, 22, 1, 28.6),
    Sketcher.Constraint("DistanceX", 44, 3, -1, 1, 10.0),
    Sketcher.Constraint("DistanceX", -1, 1, 48, 2, 6.0),
    Sketcher.Constraint("DistanceY", 48, 2, -1, 1, 8.0),
    Sketcher.Constraint("DistanceY", 22, 2, 44, 3, 5.0),
    Sketcher.Constraint("DistanceY", 44, 3, -1, 1, 32.5),
    Sketcher.Constraint("DistanceX", 47, 3, -1, 1, 46.8),
    Sketcher.Constraint("DistanceY", 47, 3, -1, 1, 12.1),
    Sketcher.Constraint("DistanceY", -1, 1, 0, 2, 34.3),
    Sketcher.Constraint("DistanceX", -1, 1, 46, 3, 29.375),
    Sketcher.Constraint("DistanceY", 46, 3, -1, 1, 33.055),
])
pad4 = doc.addObject("PartDesign::Pad", "Pad003")
body.addObject(pad4)
pad4.Profile = sketch5
pad4.Length = 3
pad4.Reversed = True
doc.recompute()

fillet = doc.addObject("PartDesign::Fillet", "Fillet")
body.addObject(fillet)
fillet.Base = (pad4, edges_at(pad4, [
    (28, 37.5, -8.5),
    (-28, 37.5, -8.5),
    (50, -8.9, -8.5),
    (50, -37.5, -8.5),
    (-50, -37.5, -8.5),
    (-50, -8.9, -8.5),
]))
fillet.Radius = 3.2

doc.recompute()
